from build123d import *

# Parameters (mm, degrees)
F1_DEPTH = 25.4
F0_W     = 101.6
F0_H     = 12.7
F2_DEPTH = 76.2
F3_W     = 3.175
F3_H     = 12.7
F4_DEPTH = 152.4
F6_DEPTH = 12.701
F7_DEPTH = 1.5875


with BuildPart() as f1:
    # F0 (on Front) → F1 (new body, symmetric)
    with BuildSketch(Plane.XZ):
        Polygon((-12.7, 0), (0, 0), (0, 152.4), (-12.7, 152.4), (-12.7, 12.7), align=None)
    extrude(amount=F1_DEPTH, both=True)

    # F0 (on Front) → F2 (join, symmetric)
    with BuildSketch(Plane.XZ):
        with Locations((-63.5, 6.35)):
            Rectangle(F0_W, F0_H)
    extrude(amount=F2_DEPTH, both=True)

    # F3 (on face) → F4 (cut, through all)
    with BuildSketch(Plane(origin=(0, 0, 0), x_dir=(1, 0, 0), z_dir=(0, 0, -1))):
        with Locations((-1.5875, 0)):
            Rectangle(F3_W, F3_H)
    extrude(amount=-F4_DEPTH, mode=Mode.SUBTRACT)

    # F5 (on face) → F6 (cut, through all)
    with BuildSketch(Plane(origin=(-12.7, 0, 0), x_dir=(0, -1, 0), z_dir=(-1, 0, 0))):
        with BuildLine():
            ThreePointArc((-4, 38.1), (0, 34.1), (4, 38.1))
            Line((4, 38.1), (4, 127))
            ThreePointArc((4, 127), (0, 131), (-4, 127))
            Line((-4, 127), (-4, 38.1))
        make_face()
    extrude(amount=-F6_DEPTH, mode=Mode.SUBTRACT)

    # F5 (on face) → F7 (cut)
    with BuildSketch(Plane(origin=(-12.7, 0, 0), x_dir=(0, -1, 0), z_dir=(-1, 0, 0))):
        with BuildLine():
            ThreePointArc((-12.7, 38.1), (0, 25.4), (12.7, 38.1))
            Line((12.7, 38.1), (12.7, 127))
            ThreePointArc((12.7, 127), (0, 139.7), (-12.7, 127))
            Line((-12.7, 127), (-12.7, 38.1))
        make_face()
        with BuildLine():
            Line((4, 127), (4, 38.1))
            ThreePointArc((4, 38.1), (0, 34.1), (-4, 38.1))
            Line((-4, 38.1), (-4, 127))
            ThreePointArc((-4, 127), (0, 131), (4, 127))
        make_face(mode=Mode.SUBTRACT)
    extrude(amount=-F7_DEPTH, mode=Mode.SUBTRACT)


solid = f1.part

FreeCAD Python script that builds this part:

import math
import FreeCAD as App
import Part
import Sketcher
Q = App.Units.Quantity


def add_polygon(sketch, points):
    """Adds a closed chain of lines whose ends are joined by coincident constraints."""
    first, n = sketch.GeometryCount, len(points)
    for a, b in zip(points, points[1:] + points[:1]):
        sketch.addGeometry(Part.LineSegment(App.Vector(*a, 0), App.Vector(*b, 0)), False)
    for i in range(n):
        sketch.addConstraint(Sketcher.Constraint("Coincident", first + i, 2, first + (i + 1) % n, 1))

doc = App.newDocument("Part")
body = doc.addObject("PartDesign::Body", "Body")

# Sketch on XZ plane
sketch1 = doc.addObject("Sketcher::SketchObject", "Sketch")
body.addObject(sketch1)
sketch1.AttachmentSupport = (doc.XZ_Plane, [""])
sketch1.MapMode = "FlatFace"
add_polygon(sketch1, [(-12.7, 0), (0, 0), (0, 152.4), (-12.7, 152.4)])  # lines 0-3
sketch1.addConstraint([
    Sketcher.Constraint("Horizontal", 0),
    Sketcher.Constraint("Vertical", 1),
    Sketcher.Constraint("Horizontal", 2),
    Sketcher.Constraint("Vertical", 3),
    Sketcher.Constraint("Coincident", 0, 2, -1, 1),
    Sketcher.Constraint("DistanceY", 1, 1, 1, 2, Q("6 in")),
    Sketcher.Constraint("DistanceX", 0, 1, 0, 2, Q("0.5 in")),
])
pad1 = doc.addObject("PartDesign::Pad", "Pad")
body.addObject(pad1)
pad1.Profile = sketch1
pad1.Length = Q("2 in")
pad1.Midplane = True

# Sketch on XZ plane
sketch2 = doc.addObject("Sketcher::SketchObject", "Sketch001")
body.addObject(sketch2)
sketch2.AttachmentSupport = (doc.XZ_Plane, [""])
sketch2.MapMode = "FlatFace"
add_polygon(sketch2, [(-114.3, 12.7), (-114.3, 0), (-12.7, 0), (-12.7, 12.7)])  # lines 0-3
sketch2.addConstraint([
    Sketcher.Constraint("Vertical", 0),
    Sketcher.Constraint("Horizontal", 1),
    Sketcher.Constraint("Vertical", 2),
    Sketcher.Constraint("Horizontal", 3),
    Sketcher.Constraint("PointOnObject", 0, 2, -1),
    Sketcher.Constraint("DistanceX", 1, 1, 1, 2, Q("4 in")),
    Sketcher.Constraint("DistanceY", 0, 2, 0, 1, Q("0.5 in")),
    Sketcher.Constraint("DistanceX", 0, 2, -1, 1, Q("4.5 in")),
])
pad2 = doc.addObject("PartDesign::Pad", "Pad001")
body.addObject(pad2)
pad2.Profile = sketch2
pad2.Length = Q("6 in")
pad2.Midplane = True

# Sketch on XY plane
sketch3 = doc.addObject("Sketcher::SketchObject", "Sketch002")
body.addObject(sketch3)
sketch3.AttachmentSupport = (doc.XY_Plane, [""])
sketch3.MapMode = "FlatFace"
add_polygon(sketch3, [(-3.175, -6.35), (-3.175, 6.35), (0, 6.35), (0, -6.35)])  # lines 0-3
sketch3.addConstraint([
    Sketcher.Constraint("Vertical", 0),
    Sketcher.Constraint("Horizontal", 1),
    Sketcher.Constraint("Vertical", 2),
    Sketcher.Constraint("Horizontal", 3),
    Sketcher.Constraint("Symmetric", 1, 2, 2, 2, -1, 1),
    Sketcher.Constraint("DistanceY", 0, 1, 0, 2, Q("0.5 in")),
    Sketcher.Constraint("DistanceX", 1, 1, 1, 2, Q("0.125 in")),
])
pocket1 = doc.addObject("PartDesign::Pocket", "Pocket")
body.addObject(pocket1)
pocket1.Profile = sketch3
pocket1.Type = "ThroughAll"
pocket1.Reversed = True

# Sketch on YZ plane
sketch4 = doc.addObject("Sketcher::SketchObject", "Sketch003")
body.addObject(sketch4)
sketch4.AttachmentSupport = (doc.YZ_Plane, [""])
sketch4.MapMode = "FlatFace"
sketch4.AttachmentOffset = App.Placement(App.Vector(0, 0, -0.5 * 25.4), App.Rotation())
sketch4.addGeometry([
    Part.ArcOfCircle(Part.Circle(App.Vector(0, 38.1, 0), App.Vector(0, 0, 1), 4), math.radians(180), math.radians(360)),
    Part.LineSegment(App.Vector(-4, 38.1, 0), App.Vector(-4, 127, 0)),
    Part.ArcOfCircle(Part.Circle(App.Vector(0, 127, 0), App.Vector(0, 0, 1), 4), math.radians(0), math.radians(180)),
    Part.LineSegment(App.Vector(4, 127, 0), App.Vector(4, 38.1, 0)),
], False)
sketch4.addConstraint([
    Sketcher.Constraint("Tangent", 0, 1, 1, 1),
    Sketcher.Constraint("Tangent", 1, 2, 2, 2),
    Sketcher.Constraint("Tangent", 2, 1, 3, 1),
    Sketcher.Constraint("Tangent", 3, 2, 0, 2),
    Sketcher.Constraint("Vertical", 1),
    Sketcher.Constraint("Vertical", 3),
    Sketcher.Constraint("PointOnObject", 0, 3, -2),
    Sketcher.Constraint("DistanceY", 1, 1, 1, 2, Q("3.5 in")),
    Sketcher.Constraint("DistanceY", -1, 1, 2, 3, Q("5 in")),
    Sketcher.Constraint("Radius", 0, Q("4 mm")),
])
pocket2 = doc.addObject("PartDesign::Pocket", "Pocket001")
body.addObject(pocket2)
pocket2.Profile = sketch4
pocket2.Type = "ThroughAll"
pocket2.Reversed = True

# Sketch on YZ plane
sketch5 = doc.addObject("Sketcher::SketchObject", "Sketch004")
body.addObject(sketch5)
sketch5.AttachmentSupport = (doc.YZ_Plane, [""])
sketch5.MapMode = "FlatFace"
sketch5.AttachmentOffset = App.Placement(App.Vector(0, 0, -0.5 * 25.4), App.Rotation())
sketch5.addGeometry([
    Part.ArcOfCircle(Part.Circle(App.Vector(0, 38.1, 0), App.Vector(0, 0, 1), 12.7), math.radians(180), math.radians(360)),  # 0
    Part.LineSegment(App.Vector(-12.7, 38.1, 0), App.Vector(-12.7, 127, 0)),  # 1
    Part.ArcOfCircle(Part.Circle(App.Vector(0, 127, 0), App.Vector(0, 0, 1), 12.7), math.radians(0), math.radians(180)),  # 2
    Part.LineSegment(App.Vector(12.7, 127, 0), App.Vector(12.7, 38.1, 0)),  # 3
    Part.ArcOfCircle(Part.Circle(App.Vector(0, 127, 0), App.Vector(0, 0, 1), 4), math.radians(0), math.radians(180)),  # 4
    Part.LineSegment(App.Vector(-4, 127, 0), App.Vector(-4, 38.1, 0)),  # 5
    Part.ArcOfCircle(Part.Circle(App.Vector(0, 38.1, 0), App.Vector(0, 0, 1), 4), math.radians(180), math.radians(360)),  # 6
    Part.LineSegment(App.Vector(4, 38.1, 0), App.Vector(4, 127, 0)),  # 7
], False)
sketch5.addConstraint([
    Sketcher.Constraint("Tangent", 0, 1, 1, 1),
    Sketcher.Constraint("Tangent", 1, 2, 2, 2),
    Sketcher.Constraint("Tangent", 2, 1, 3, 1),
    Sketcher.Constraint("Tangent", 3, 2, 0, 2),
    Sketcher.Constraint("Tangent", 4, 2, 5, 1),
    Sketcher.Constraint("Tangent", 5, 2, 6, 1),
    Sketcher.Constraint("Tangent", 6, 2, 7, 1),
    Sketcher.Constraint("Tangent", 7, 2, 4, 1),
    Sketcher.Constraint("Vertical", 1),
    Sketcher.Constraint("Vertical", 3),
    Sketcher.Constraint("Vertical", 5),
    Sketcher.Constraint("Vertical", 7),
    Sketcher.Constraint("Coincident", 4, 3, 2, 3),
    Sketcher.Constraint("PointOnObject", 0, 3, -2),
    Sketcher.Constraint("Horizontal", 6, 3, 0, 1),
    Sketcher.Constraint("Radius", 0, Q("0.5 in")),
    Sketcher.Constraint("DistanceY", 1, 1, 1, 2, Q("3.5 in")),
    Sketcher.Constraint("DistanceY", -1, 1, 2, 3, Q("5 in")),
    Sketcher.Constraint("Radius", 4, Q("4 mm")),
])
pocket3 = doc.addObject("PartDesign::Pocket", "Pocket002")
body.addObject(pocket3)
pocket3.Profile = sketch5
pocket3.Length = Q("0.0625 in")
pocket3.Reversed = True

doc.recompute()
